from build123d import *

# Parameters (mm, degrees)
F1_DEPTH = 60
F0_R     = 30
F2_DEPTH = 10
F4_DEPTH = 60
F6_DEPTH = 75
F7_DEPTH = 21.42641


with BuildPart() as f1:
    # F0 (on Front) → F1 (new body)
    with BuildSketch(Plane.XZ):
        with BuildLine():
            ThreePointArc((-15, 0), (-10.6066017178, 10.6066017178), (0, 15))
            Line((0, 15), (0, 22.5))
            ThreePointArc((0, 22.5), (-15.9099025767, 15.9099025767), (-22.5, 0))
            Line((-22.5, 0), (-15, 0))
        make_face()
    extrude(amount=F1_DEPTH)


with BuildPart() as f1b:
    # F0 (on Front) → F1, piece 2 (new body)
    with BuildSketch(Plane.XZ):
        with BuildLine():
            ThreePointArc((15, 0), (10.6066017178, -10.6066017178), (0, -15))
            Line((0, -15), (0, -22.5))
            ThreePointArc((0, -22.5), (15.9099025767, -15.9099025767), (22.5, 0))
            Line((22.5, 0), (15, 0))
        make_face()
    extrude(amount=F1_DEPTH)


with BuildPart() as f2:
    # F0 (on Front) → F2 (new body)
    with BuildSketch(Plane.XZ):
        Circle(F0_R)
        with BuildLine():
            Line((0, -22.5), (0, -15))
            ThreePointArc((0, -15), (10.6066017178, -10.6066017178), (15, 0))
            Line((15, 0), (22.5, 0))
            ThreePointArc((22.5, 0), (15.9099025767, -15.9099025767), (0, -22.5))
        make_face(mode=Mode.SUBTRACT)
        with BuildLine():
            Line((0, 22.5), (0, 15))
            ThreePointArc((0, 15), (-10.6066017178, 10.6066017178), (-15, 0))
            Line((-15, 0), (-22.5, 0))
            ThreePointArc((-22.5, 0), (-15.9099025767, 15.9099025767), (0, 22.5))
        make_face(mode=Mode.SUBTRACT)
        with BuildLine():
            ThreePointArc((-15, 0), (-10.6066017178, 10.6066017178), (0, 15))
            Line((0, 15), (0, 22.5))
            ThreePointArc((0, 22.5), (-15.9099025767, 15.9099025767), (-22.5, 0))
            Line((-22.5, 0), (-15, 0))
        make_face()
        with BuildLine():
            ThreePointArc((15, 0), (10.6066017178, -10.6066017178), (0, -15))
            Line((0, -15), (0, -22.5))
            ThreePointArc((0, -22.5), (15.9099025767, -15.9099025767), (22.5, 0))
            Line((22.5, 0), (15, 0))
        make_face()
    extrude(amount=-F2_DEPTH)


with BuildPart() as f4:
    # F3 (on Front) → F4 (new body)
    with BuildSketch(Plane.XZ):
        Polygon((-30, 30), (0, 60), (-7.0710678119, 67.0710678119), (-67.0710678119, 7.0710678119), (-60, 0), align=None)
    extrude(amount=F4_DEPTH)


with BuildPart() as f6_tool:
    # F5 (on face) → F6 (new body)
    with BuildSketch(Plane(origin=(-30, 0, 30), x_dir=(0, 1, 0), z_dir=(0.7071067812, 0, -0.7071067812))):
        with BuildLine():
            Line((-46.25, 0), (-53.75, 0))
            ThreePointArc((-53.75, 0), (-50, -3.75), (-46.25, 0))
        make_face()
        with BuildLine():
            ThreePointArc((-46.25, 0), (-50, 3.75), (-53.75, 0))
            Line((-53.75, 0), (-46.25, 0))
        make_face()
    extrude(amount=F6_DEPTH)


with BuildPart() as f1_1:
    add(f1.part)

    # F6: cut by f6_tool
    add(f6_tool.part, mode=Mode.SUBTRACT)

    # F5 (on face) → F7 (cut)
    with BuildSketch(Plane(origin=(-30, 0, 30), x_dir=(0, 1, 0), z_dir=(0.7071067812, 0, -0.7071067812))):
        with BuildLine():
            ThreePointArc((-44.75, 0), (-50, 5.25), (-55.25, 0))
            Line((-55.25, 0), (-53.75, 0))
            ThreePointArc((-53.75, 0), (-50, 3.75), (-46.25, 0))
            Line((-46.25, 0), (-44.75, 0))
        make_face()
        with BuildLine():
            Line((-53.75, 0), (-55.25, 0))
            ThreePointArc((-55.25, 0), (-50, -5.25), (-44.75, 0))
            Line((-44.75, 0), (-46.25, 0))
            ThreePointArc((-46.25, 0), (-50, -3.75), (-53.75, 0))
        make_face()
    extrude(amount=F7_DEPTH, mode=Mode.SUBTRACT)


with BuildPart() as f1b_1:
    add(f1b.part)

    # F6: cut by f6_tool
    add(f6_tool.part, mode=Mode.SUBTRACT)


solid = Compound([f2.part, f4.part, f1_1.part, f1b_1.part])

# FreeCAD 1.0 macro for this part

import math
import FreeCAD as App
import Part
import Sketcher
Q = App.Units.Quantity

doc = App.newDocument("Part")
body = doc.addObject("PartDesign::Body", "Body")

# Sketch on XZ plane
sketch1 = doc.addObject("Sketcher::SketchObject", "Sketch")
body.addObject(sketch1)
sketch1.AttachmentSupport = (doc.XZ_Plane, [""])
sketch1.MapMode = "FlatFace"
sketch1.addGeometry(Part.ArcOfCircle(Part.Circle(App.Vector(0, 0, 0), App.Vector(0, 0, 1), 15), math.radians(90), math.radians(180)), False)
sketch1.addGeometry(Part.LineSegment(App.Vector(0, 15, 0), App.Vector(0, 22, 0)), False)
sketch1.addGeometry(Part.ArcOfCircle(Part.Circle(App.Vector(0, 0, 0), App.Vector(0, 0, 1), 22), math.radians(90), math.radians(180)), False)
sketch1.addGeometry(Part.LineSegment(App.Vector(-22, 0, 0), App.Vector(-15, 0, 0)), False)
sketch1.addConstraint(Sketcher.Constraint("Coincident", 0, 1, 1, 1))
sketch1.addConstraint(Sketcher.Constraint("Coincident", 1, 2, 2, 1))
sketch1.addConstraint(Sketcher.Constraint("Coincident", 2, 2, 3, 1))
sketch1.addConstraint(Sketcher.Constraint("Coincident", 3, 2, 0, 2))
sketch1.addConstraint(Sketcher.Constraint("Vertical", 1))
sketch1.addConstraint(Sketcher.Constraint("Horizontal", 3))
sketch1.addConstraint(Sketcher.Constraint("Coincident", 0, 3, -1, 1))
sketch1.addConstraint(Sketcher.Constraint("Coincident", 2, 3, -1, 1))
sketch1.addConstraint(Sketcher.Constraint("PointOnObject", 0, 1, -2))
sketch1.addConstraint(Sketcher.Constraint("PointOnObject", 2, 2, -1))
sketch1.addConstraint(Sketcher.Constraint("Radius", 0, Q("15 mm")))
sketch1.addConstraint(Sketcher.Constraint("Radius", 2, Q("22.5 mm")))
pad1 = doc.addObject("PartDesign::Pad", "Pad")
body.addObject(pad1)
pad1.Profile = sketch1
pad1.Length = 60
body2 = doc.addObject("PartDesign::Body", "Body001")

# Sketch on XZ plane
sketch2 = doc.addObject("Sketcher::SketchObject", "Sketch001")
body2.addObject(sketch2)
sketch2.AttachmentSupport = (doc.getObject("XZ_Plane001"), [""])
sketch2.MapMode = "FlatFace"
sketch2.addGeometry(Part.ArcOfCircle(Part.Circle(App.Vector(0, 0, 0), App.Vector(0, 0, 1), 15), math.radians(-90), math.radians(0)), False)
sketch2.addGeometry(Part.LineSegment(App.Vector(0, -15, 0), App.Vector(0, -22, 0)), False)
sketch2.addGeometry(Part.ArcOfCircle(Part.Circle(App.Vector(0, 0, 0), App.Vector(0, 0, 1), 22), math.radians(-90), math.radians(0)), False)
sketch2.addGeometry(Part.LineSegment(App.Vector(22, 0, 0), App.Vector(15, 0, 0)), False)
sketch2.addConstraint(Sketcher.Constraint("Coincident", 0, 1, 1, 1))
sketch2.addConstraint(Sketcher.Constraint("Coincident", 1, 2, 2, 1))
sketch2.addConstraint(Sketcher.Constraint("Coincident", 2, 2, 3, 1))
sketch2.addConstraint(Sketcher.Constraint("Coincident", 3, 2, 0, 2))
sketch2.addConstraint(Sketcher.Constraint("Vertical", 1))
sketch2.addConstraint(Sketcher.Constraint("Horizontal", 3))
sketch2.addConstraint(Sketcher.Constraint("Coincident", 0, 3, -1, 1))
sketch2.addConstraint(Sketcher.Constraint("Coincident", 2, 3, -1, 1))
sketch2.addConstraint(Sketcher.Constraint("PointOnObject", 0, 1, -2))
sketch2.addConstraint(Sketcher.Constraint("PointOnObject", 2, 2, -1))
sketch2.addConstraint(Sketcher.Constraint("Radius", 0, Q("15 mm")))
sketch2.addConstraint(Sketcher.Constraint("Radius", 2, Q("22.5 mm")))
pad2 = doc.addObject("PartDesign::Pad", "Pad001")
body2.addObject(pad2)
pad2.Profile = sketch2
pad2.Length = 60
body3 = doc.addObject("PartDesign::Body", "Body002")

# Sketch on XZ plane
sketch3 = doc.addObject("Sketcher::SketchObject", "Sketch002")
body3.addObject(sketch3)
sketch3.AttachmentSupport = (doc.getObject("XZ_Plane002"), [""])
sketch3.MapMode = "FlatFace"
sketch3.addGeometry(Part.Circle(App.Vector(0, 0, 0), App.Vector(0, 0, 1), 30), False)
sketch3.addConstraint(Sketcher.Constraint("Coincident", 0, 3, -1, 1))
sketch3.addConstraint(Sketcher.Constraint("Diameter", 0, Q("60 mm")))
pad3 = doc.addObject("PartDesign::Pad", "Pad002")
body3.addObject(pad3)
pad3.Profile = sketch3
pad3.Length = 10
pad3.Reversed = True
body4 = doc.addObject("PartDesign::Body", "Body003")

# Sketch on XZ plane
sketch4 = doc.addObject("Sketcher::SketchObject", "Sketch003")
body4.addObject(sketch4)
sketch4.AttachmentSupport = (doc.getObject("XZ_Plane003"), [""])
sketch4.MapMode = "FlatFace"
sketch4.addGeometry(Part.LineSegment(App.Vector(0, 60, 0), App.Vector(-7, 67, 0)), False)
sketch4.addGeometry(Part.LineSegment(App.Vector(-7, 67, 0), App.Vector(-67, 7, 0)), False)
sketch4.addGeometry(Part.LineSegment(App.Vector(-67, 7, 0), App.Vector(-60, 0, 0)), False)
sketch4.addGeometry(Part.LineSegment(App.Vector(-60, 0, 0), App.Vector(0, 60, 0)), False)
sketch4.addConstraint(Sketcher.Constraint("Coincident", 0, 2, 1, 1))
sketch4.addConstraint(Sketcher.Constraint("Coincident", 1, 2, 2, 1))
sketch4.addConstraint(Sketcher.Constraint("Coincident", 2, 2, 3, 1))
sketch4.addConstraint(Sketcher.Constraint("Coincident", 3, 2, 0, 1))
sketch4.addConstraint(Sketcher.Constraint("PointOnObject", 2, 2, -1))
sketch4.addConstraint(Sketcher.Constraint("PointOnObject", 3, 2, -2))
sketch4.addConstraint(Sketcher.Constraint("Perpendicular", 0, 1))
sketch4.addConstraint(Sketcher.Constraint("Perpendicular", 1, 2))
sketch4.addConstraint(Sketcher.Constraint("Perpendicular", 2, 3))
sketch4.addConstraint(Sketcher.Constraint("Angle", 0, Q("135 deg")))
sketch4.addConstraint(Sketcher.Constraint("Distance", 0, Q("10 mm")))
sketch4.addConstraint(Sketcher.Constraint("DistanceX", 2, 2, -1, 1, Q("60 mm")))
pad4 = doc.addObject("PartDesign::Pad", "Pad003")
body4.addObject(pad4)
pad4.Profile = sketch4
pad4.Length = 60
body5 = doc.addObject("PartDesign::Body", "Body004")

# Sketch on an angled plane
sketch5 = doc.addObject("Sketcher::SketchObject", "Sketch004")
body5.addObject(sketch5)
sketch5.Placement = App.Placement(App.Vector(-30, 0, 30), App.Rotation(App.Vector(0, 1, 0), App.Vector(0.707106781, 0, 0.707106781), App.Vector(0.707106781, 0, -0.707106781), "ZXY"))
sketch5.addGeometry(Part.Circle(App.Vector(-50, 0, 0), App.Vector(0, 0, 1), 3.8), False)
sketch5.addConstraint(Sketcher.Constraint("PointOnObject", 0, 3, -1))
sketch5.addConstraint(Sketcher.Constraint("Diameter", 0, Q("7.5 mm")))
sketch5.addConstraint(Sketcher.Constraint("DistanceX", 0, 3, -1, 1, Q("50 mm")))
pad5 = doc.addObject("PartDesign::Pad", "Pad004")
body5.addObject(pad5)
pad5.Profile = sketch5
pad5.Length = 75
doc.recompute()

body6 = doc.addObject("PartDesign::Body", "Body005")
body6.BaseFeature = body5
boolean = doc.addObject("PartDesign::Boolean", "Boolean")
body.addObject(boolean)
boolean.Type = "Cut"
boolean.addObjects([body6])
doc.recompute()

# Sketch on an angled plane
sketch6 = doc.addObject("Sketcher::SketchObject", "Sketch005")
body.addObject(sketch6)
sketch6.Placement = App.Placement(App.Vector(-30, 0, 30), App.Rotation(App.Vector(0, 1, 0), App.Vector(0.707106781, 0, 0.707106781), App.Vector(0.707106781, 0, -0.707106781), "ZXY"))
sketch6.addGeometry(Part.Circle(App.Vector(-50, 0, 0), App.Vector(0, 0, 1), 5.2), False)
sketch6.addGeometry(Part.Circle(App.Vector(-50, 0, 0), App.Vector(0, 0, 1), 3.8), False)
sketch6.addConstraint(Sketcher.Constraint("Coincident", 1, 3, 0, 3))
sketch6.addConstraint(Sketcher.Constraint("PointOnObject", 0, 3, -1))
sketch6.addConstraint(Sketcher.Constraint("Diameter", 0, Q("10.5 mm")))
sketch6.addConstraint(Sketcher.Constraint("Diameter", 1, Q("7.5 mm")))
sketch6.addConstraint(Sketcher.Constraint("DistanceX", 0, 3, -1, 1, Q("50 mm")))
pocket1 = doc.addObject("PartDesign::Pocket", "Pocket")
body.addObject(pocket1)
pocket1.Profile = sketch6
pocket1.Length = 21.42641
pocket1.Reversed = True
doc.recompute()

boolean2 = doc.addObject("PartDesign::Boolean", "Boolean001")
body2.addObject(boolean2)
boolean2.Type = "Cut"
boolean2.addObjects([body5])

doc.recompute()
